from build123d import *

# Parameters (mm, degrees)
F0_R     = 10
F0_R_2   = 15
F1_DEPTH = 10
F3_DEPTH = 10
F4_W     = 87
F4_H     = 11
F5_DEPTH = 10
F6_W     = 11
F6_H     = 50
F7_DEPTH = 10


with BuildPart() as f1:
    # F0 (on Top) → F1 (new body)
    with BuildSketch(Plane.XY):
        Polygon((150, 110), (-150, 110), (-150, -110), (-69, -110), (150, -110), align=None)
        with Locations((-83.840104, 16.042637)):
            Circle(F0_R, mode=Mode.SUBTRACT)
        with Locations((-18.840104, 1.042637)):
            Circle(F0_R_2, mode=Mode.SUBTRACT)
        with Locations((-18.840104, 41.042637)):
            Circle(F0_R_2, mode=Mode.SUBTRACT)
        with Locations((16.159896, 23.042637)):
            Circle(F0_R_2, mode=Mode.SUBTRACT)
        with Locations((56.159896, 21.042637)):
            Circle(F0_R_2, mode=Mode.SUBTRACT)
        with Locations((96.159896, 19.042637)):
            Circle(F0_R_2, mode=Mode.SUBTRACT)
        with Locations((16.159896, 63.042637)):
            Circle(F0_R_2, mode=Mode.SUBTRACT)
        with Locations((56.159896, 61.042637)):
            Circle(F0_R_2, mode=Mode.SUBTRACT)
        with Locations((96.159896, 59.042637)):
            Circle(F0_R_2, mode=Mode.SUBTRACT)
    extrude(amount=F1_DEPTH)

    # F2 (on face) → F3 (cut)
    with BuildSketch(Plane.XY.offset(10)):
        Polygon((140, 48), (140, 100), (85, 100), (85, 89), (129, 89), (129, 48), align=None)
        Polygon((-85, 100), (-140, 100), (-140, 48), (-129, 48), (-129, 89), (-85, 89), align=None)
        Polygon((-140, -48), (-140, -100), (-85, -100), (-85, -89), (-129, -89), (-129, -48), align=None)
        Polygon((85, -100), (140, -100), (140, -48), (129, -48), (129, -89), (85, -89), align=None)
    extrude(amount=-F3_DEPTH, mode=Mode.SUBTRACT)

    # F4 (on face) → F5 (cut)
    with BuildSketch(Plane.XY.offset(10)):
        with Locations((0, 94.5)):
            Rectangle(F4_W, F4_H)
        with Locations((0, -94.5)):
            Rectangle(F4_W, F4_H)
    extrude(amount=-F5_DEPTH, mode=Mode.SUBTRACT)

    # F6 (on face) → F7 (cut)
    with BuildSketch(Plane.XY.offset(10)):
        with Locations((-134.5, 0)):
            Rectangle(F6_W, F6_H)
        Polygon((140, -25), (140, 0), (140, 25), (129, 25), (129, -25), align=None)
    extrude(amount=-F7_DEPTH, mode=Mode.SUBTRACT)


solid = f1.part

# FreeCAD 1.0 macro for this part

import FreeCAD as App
import Part
import Sketcher
from FreeCAD import Vector
Q = App.Units.Quantity


def add_polygon(sketch, points):
    """Adds a closed chain of lines whose ends are joined by coincident constraints."""
    first, n = sketch.GeometryCount, len(points)
    for a, b in zip(points, points[1:] + points[:1]):
        sketch.addGeometry(Part.LineSegment(App.Vector(*a, 0), App.Vector(*b, 0)), False)
    for i in range(n):
        sketch.addConstraint(Sketcher.Constraint("Coincident", first + i, 2, first + (i + 1) % n, 1))

doc = App.newDocument("Part")
body = doc.addObject("PartDesign::Body", "Body")

# Sketch on XY plane
sketch1 = body.newObject("Sketcher::SketchObject", "Sketch")
sketch1.AttachmentSupport = (doc.getObject("XY_Plane"), [""])
sketch1.MapMode = "FlatFace"
add_polygon(sketch1, [(150, 110), (-150, 110), (-150, -110), (150, -110)])  # lines 0-3
sketch1.addGeometry(Part.Circle(Vector(-19, 1, 0), Vector(0, 0, 1), 15), False)  # 4
sketch1.addGeometry(Part.Circle(Vector(-84, 16, 0), Vector(0, 0, 1), 10), False)  # 5
sketch1.addGeometry(Part.Circle(Vector(16, 23, 0), Vector(0, 0, 1), 15), False)  # 6
sketch1.addGeometry(Part.Circle(Vector(56, 21, 0), Vector(0, 0, 1), 15), False)  # 7
sketch1.addGeometry(Part.Circle(Vector(96, 19, 0), Vector(0, 0, 1), 15), False)  # 8
sketch1.addGeometry(Part.Circle(Vector(-19, 41, 0), Vector(0, 0, 1), 15), False)  # 9
sketch1.addGeometry(Part.Circle(Vector(16, 63, 0), Vector(0, 0, 1), 15), False)  # 10
sketch1.addGeometry(Part.Circle(Vector(56, 61, 0), Vector(0, 0, 1), 15), False)  # 11
sketch1.addGeometry(Part.Circle(Vector(96, 59, 0), Vector(0, 0, 1), 15), False)  # 12
sketch1.addConstraint([
    Sketcher.Constraint("Horizontal", 0),
    Sketcher.Constraint("Vertical", 1),
    Sketcher.Constraint("Horizontal", 2),
    Sketcher.Constraint("Vertical", 3),
    Sketcher.Constraint("Equal", 4, 6),
    Sketcher.Constraint("Equal", 6, 7),
    Sketcher.Constraint("Equal", 7, 8),
    Sketcher.Constraint("Equal", 8, 9),
    Sketcher.Constraint("Equal", 9, 10),
    Sketcher.Constraint("Equal", 10, 11),
    Sketcher.Constraint("Equal", 11, 12),
    Sketcher.Constraint("Symmetric", 0, 2, 2, 2, -1, 1),
    Sketcher.Constraint("Vertical", 4, 3, 9, 3),
    Sketcher.Constraint("Vertical", 6, 3, 10, 3),
    Sketcher.Constraint("Vertical", 7, 3, 11, 3),
    Sketcher.Constraint("Vertical", 8, 3, 12, 3),
    Sketcher.Constraint("Diameter", 4, Q("30 mm")),
    Sketcher.Constraint("Diameter", 5, Q("20 mm")),
    Sketcher.Constraint("DistanceX", 0, 2, 0, 1, Q("300 mm")),
    Sketcher.Constraint("DistanceY", 1, 2, 1, 1, Q("220 mm")),
    Sketcher.Constraint("DistanceX", 5, 3, 4, 3, Q("65 mm")),
    Sketcher.Constraint("DistanceY", 4, 3, 5, 3, Q("15 mm")),
    Sketcher.Constraint("DistanceX", 4, 3, 6, 3, Q("35 mm")),
    Sketcher.Constraint("DistanceY", 4, 3, 6, 3, Q("22 mm")),
    Sketcher.Constraint("DistanceX", 6, 3, 7, 3, Q("40 mm")),
    Sketcher.Constraint("DistanceY", 7, 3, 6, 3, Q("2 mm")),
    Sketcher.Constraint("DistanceX", 7, 3, 8, 3, Q("40 mm")),
    Sketcher.Constraint("DistanceY", 8, 3, 7, 3, Q("2 mm")),
    Sketcher.Constraint("DistanceY", 6, 3, 9, 3, Q("18 mm")),
    Sketcher.Constraint("DistanceY", 6, 3, 10, 3, Q("40 mm")),
    Sketcher.Constraint("DistanceY", 7, 3, 11, 3, Q("40 mm")),
    Sketcher.Constraint("DistanceY", 8, 3, 12, 3, Q("40 mm")),
    Sketcher.Constraint("DistanceX", 4, 3, -1, 1, Q("18.840104 mm")),
    Sketcher.Constraint("DistanceY", -1, 1, 4, 3, Q("1.042637 mm")),
])
pad1 = body.newObject("PartDesign::Pad", "Pad")
pad1.Profile = sketch1
pad1.Length = 10

# Sketch on XY plane
sketch2 = body.newObject("Sketcher::SketchObject", "Sketch001")
sketch2.AttachmentSupport = (doc.getObject("XY_Plane"), [""])
sketch2.MapMode = "FlatFace"
sketch2.AttachmentOffset = App.Placement(Vector(0, 0, 10), App.Rotation())
add_polygon(sketch2, [(140, 48), (140, 100), (85, 100), (85, 89), (129, 89), (129, 48)])  # lines 0-5
add_polygon(sketch2, [(-85, 100), (-140, 100), (-140, 48), (-129, 48), (-129, 89), (-85, 89)])  # lines 6-11
add_polygon(sketch2, [(-140, -48), (-140, -100), (-85, -100), (-85, -89), (-129, -89), (-129, -48)])  # lines 12-17
add_polygon(sketch2, [(85, -100), (140, -100), (140, -48), (129, -48), (129, -89), (85, -89)])  # lines 18-23
sketch2.addConstraint([
    Sketcher.Constraint("Vertical", 0),
    Sketcher.Constraint("Horizontal", 1),
    Sketcher.Constraint("Vertical", 2),
    Sketcher.Constraint("Horizontal", 3),
    Sketcher.Constraint("Vertical", 4),
    Sketcher.Constraint("Horizontal", 5),
    Sketcher.Constraint("Horizontal", 6),
    Sketcher.Constraint("Vertical", 7),
    Sketcher.Constraint("Horizontal", 8),
    Sketcher.Constraint("Vertical", 9),
    Sketcher.Constraint("Horizontal", 10),
    Sketcher.Constraint("Vertical", 11),
    Sketcher.Constraint("Vertical", 12),
    Sketcher.Constraint("Horizontal", 13),
    Sketcher.Constraint("Vertical", 14),
    Sketcher.Constraint("Horizontal", 15),
    Sketcher.Constraint("Vertical", 16),
    Sketcher.Constraint("Horizontal", 17),
    Sketcher.Constraint("Horizontal", 18),
    Sketcher.Constraint("Vertical", 19),
    Sketcher.Constraint("Horizontal", 20),
    Sketcher.Constraint("Vertical", 21),
    Sketcher.Constraint("Horizontal", 22),
    Sketcher.Constraint("Vertical", 23),
    Sketcher.Constraint("Symmetric", 0, 2, 12, 2, -1, 1),
    Sketcher.Constraint("Symmetric", 2, 2, 14, 2, -1, 1),
    Sketcher.Constraint("Symmetric", 4, 2, 16, 2, -1, 1),
    Sketcher.Constraint("Symmetric", 6, 2, 18, 2, -1, 1),
    Sketcher.Constraint("Symmetric", 8, 2, 20, 2, -1, 1),
    Sketcher.Constraint("Symmetric", 10, 2, 22, 2, -1, 1),
    Sketcher.Constraint("Symmetric", 0, 2, 6, 2, -2),
    Sketcher.Constraint("Symmetric", 4, 2, 8, 2, -2),
    Sketcher.Constraint("Symmetric", 2, 2, 10, 2, -2),
    Sketcher.Constraint("Equal", 20, 2),
    Sketcher.Constraint("DistanceX", 1, 2, 1, 1, Q("55 mm")),
    Sketcher.Constraint("DistanceX", 3, 1, 3, 2, Q("44 mm")),
    Sketcher.Constraint("DistanceY", 0, 1, 0, 2, Q("52 mm")),
    Sketcher.Constraint("DistanceX", -1, 1, 0, 2, Q("140 mm")),
    Sketcher.Constraint("DistanceY", -1, 1, 0, 2, Q("100 mm")),
])
pocket1 = body.newObject("PartDesign::Pocket", "Pocket")
pocket1.Profile = sketch2
pocket1.Length = 10

# Sketch on XY plane
sketch3 = body.newObject("Sketcher::SketchObject", "Sketch002")
sketch3.AttachmentSupport = (doc.getObject("XY_Plane"), [""])
sketch3.MapMode = "FlatFace"
sketch3.AttachmentOffset = App.Placement(Vector(0, 0, 10), App.Rotation())
add_polygon(sketch3, [(-44, 100), (-44, 89), (44, 89), (44, 100)])  # lines 0-3
add_polygon(sketch3, [(-44, -89), (-44, -100), (44, -100), (44, -89)])  # lines 4-7
sketch3.addConstraint([
    Sketcher.Constraint("Vertical", 0),
    Sketcher.Constraint("Horizontal", 1),
    Sketcher.Constraint("Vertical", 2),
    Sketcher.Constraint("Horizontal", 3),
    Sketcher.Constraint("Vertical", 4),
    Sketcher.Constraint("Horizontal", 5),
    Sketcher.Constraint("Vertical", 6),
    Sketcher.Constraint("Horizontal", 7),
    Sketcher.Constraint("Symmetric", 2, 2, 4, 2, -1, 1),
    Sketcher.Constraint("Symmetric", 0, 2, 6, 2, -1, 1),
    Sketcher.Constraint("Vertical", 3, 2, 4, 2),
    Sketcher.Constraint("DistanceX", 1, 1, 1, 2, Q("87 mm")),
    Sketcher.Constraint("DistanceY", 0, 2, 0, 1, Q("11 mm")),
    Sketcher.Constraint("DistanceY", -1, 1, 0, 2, Q("89 mm")),
])
pocket2 = body.newObject("PartDesign::Pocket", "Pocket001")
pocket2.Profile = sketch3
pocket2.Length = 10

# Sketch on XY plane
sketch4 = body.newObject("Sketcher::SketchObject", "Sketch003")
sketch4.AttachmentSupport = (doc.getObject("XY_Plane"), [""])
sketch4.MapMode = "FlatFace"
sketch4.AttachmentOffset = App.Placement(Vector(0, 0, 10), App.Rotation())
add_polygon(sketch4, [(-140, 25), (-140, -25), (-129, -25), (-129, 25)])  # lines 0-3
add_polygon(sketch4, [(140, -25), (140, 25), (129, 25), (129, -25)])  # lines 4-7
sketch4.addConstraint([
    Sketcher.Constraint("Vertical", 0),
    Sketcher.Constraint("Horizontal", 1),
    Sketcher.Constraint("Vertical", 2),
    Sketcher.Constraint("Horizontal", 3),
    Sketcher.Constraint("Vertical", 4),
    Sketcher.Constraint("Horizontal", 5),
    Sketcher.Constraint("Vertical", 6),
    Sketcher.Constraint("Horizontal", 7),
    Sketcher.Constraint("Symmetric", 0, 2, 4, 2, -1, 1),
    Sketcher.Constraint("Symmetric", 2, 2, 6, 2, -1, 1),
    Sketcher.Constraint("Horizontal", 3, 2, 4, 2),
    Sketcher.Constraint("DistanceX", 1, 1, 1, 2, Q("11 mm")),
    Sketcher.Constraint("DistanceY", 0, 2, 0, 1, Q("50 mm")),
    Sketcher.Constraint("DistanceX", 0, 2, -1, 1, Q("140 mm")),
])
pocket3 = body.newObject("PartDesign::Pocket", "Pocket002")
pocket3.Profile = sketch4
pocket3.Length = 10

doc.recompute()
